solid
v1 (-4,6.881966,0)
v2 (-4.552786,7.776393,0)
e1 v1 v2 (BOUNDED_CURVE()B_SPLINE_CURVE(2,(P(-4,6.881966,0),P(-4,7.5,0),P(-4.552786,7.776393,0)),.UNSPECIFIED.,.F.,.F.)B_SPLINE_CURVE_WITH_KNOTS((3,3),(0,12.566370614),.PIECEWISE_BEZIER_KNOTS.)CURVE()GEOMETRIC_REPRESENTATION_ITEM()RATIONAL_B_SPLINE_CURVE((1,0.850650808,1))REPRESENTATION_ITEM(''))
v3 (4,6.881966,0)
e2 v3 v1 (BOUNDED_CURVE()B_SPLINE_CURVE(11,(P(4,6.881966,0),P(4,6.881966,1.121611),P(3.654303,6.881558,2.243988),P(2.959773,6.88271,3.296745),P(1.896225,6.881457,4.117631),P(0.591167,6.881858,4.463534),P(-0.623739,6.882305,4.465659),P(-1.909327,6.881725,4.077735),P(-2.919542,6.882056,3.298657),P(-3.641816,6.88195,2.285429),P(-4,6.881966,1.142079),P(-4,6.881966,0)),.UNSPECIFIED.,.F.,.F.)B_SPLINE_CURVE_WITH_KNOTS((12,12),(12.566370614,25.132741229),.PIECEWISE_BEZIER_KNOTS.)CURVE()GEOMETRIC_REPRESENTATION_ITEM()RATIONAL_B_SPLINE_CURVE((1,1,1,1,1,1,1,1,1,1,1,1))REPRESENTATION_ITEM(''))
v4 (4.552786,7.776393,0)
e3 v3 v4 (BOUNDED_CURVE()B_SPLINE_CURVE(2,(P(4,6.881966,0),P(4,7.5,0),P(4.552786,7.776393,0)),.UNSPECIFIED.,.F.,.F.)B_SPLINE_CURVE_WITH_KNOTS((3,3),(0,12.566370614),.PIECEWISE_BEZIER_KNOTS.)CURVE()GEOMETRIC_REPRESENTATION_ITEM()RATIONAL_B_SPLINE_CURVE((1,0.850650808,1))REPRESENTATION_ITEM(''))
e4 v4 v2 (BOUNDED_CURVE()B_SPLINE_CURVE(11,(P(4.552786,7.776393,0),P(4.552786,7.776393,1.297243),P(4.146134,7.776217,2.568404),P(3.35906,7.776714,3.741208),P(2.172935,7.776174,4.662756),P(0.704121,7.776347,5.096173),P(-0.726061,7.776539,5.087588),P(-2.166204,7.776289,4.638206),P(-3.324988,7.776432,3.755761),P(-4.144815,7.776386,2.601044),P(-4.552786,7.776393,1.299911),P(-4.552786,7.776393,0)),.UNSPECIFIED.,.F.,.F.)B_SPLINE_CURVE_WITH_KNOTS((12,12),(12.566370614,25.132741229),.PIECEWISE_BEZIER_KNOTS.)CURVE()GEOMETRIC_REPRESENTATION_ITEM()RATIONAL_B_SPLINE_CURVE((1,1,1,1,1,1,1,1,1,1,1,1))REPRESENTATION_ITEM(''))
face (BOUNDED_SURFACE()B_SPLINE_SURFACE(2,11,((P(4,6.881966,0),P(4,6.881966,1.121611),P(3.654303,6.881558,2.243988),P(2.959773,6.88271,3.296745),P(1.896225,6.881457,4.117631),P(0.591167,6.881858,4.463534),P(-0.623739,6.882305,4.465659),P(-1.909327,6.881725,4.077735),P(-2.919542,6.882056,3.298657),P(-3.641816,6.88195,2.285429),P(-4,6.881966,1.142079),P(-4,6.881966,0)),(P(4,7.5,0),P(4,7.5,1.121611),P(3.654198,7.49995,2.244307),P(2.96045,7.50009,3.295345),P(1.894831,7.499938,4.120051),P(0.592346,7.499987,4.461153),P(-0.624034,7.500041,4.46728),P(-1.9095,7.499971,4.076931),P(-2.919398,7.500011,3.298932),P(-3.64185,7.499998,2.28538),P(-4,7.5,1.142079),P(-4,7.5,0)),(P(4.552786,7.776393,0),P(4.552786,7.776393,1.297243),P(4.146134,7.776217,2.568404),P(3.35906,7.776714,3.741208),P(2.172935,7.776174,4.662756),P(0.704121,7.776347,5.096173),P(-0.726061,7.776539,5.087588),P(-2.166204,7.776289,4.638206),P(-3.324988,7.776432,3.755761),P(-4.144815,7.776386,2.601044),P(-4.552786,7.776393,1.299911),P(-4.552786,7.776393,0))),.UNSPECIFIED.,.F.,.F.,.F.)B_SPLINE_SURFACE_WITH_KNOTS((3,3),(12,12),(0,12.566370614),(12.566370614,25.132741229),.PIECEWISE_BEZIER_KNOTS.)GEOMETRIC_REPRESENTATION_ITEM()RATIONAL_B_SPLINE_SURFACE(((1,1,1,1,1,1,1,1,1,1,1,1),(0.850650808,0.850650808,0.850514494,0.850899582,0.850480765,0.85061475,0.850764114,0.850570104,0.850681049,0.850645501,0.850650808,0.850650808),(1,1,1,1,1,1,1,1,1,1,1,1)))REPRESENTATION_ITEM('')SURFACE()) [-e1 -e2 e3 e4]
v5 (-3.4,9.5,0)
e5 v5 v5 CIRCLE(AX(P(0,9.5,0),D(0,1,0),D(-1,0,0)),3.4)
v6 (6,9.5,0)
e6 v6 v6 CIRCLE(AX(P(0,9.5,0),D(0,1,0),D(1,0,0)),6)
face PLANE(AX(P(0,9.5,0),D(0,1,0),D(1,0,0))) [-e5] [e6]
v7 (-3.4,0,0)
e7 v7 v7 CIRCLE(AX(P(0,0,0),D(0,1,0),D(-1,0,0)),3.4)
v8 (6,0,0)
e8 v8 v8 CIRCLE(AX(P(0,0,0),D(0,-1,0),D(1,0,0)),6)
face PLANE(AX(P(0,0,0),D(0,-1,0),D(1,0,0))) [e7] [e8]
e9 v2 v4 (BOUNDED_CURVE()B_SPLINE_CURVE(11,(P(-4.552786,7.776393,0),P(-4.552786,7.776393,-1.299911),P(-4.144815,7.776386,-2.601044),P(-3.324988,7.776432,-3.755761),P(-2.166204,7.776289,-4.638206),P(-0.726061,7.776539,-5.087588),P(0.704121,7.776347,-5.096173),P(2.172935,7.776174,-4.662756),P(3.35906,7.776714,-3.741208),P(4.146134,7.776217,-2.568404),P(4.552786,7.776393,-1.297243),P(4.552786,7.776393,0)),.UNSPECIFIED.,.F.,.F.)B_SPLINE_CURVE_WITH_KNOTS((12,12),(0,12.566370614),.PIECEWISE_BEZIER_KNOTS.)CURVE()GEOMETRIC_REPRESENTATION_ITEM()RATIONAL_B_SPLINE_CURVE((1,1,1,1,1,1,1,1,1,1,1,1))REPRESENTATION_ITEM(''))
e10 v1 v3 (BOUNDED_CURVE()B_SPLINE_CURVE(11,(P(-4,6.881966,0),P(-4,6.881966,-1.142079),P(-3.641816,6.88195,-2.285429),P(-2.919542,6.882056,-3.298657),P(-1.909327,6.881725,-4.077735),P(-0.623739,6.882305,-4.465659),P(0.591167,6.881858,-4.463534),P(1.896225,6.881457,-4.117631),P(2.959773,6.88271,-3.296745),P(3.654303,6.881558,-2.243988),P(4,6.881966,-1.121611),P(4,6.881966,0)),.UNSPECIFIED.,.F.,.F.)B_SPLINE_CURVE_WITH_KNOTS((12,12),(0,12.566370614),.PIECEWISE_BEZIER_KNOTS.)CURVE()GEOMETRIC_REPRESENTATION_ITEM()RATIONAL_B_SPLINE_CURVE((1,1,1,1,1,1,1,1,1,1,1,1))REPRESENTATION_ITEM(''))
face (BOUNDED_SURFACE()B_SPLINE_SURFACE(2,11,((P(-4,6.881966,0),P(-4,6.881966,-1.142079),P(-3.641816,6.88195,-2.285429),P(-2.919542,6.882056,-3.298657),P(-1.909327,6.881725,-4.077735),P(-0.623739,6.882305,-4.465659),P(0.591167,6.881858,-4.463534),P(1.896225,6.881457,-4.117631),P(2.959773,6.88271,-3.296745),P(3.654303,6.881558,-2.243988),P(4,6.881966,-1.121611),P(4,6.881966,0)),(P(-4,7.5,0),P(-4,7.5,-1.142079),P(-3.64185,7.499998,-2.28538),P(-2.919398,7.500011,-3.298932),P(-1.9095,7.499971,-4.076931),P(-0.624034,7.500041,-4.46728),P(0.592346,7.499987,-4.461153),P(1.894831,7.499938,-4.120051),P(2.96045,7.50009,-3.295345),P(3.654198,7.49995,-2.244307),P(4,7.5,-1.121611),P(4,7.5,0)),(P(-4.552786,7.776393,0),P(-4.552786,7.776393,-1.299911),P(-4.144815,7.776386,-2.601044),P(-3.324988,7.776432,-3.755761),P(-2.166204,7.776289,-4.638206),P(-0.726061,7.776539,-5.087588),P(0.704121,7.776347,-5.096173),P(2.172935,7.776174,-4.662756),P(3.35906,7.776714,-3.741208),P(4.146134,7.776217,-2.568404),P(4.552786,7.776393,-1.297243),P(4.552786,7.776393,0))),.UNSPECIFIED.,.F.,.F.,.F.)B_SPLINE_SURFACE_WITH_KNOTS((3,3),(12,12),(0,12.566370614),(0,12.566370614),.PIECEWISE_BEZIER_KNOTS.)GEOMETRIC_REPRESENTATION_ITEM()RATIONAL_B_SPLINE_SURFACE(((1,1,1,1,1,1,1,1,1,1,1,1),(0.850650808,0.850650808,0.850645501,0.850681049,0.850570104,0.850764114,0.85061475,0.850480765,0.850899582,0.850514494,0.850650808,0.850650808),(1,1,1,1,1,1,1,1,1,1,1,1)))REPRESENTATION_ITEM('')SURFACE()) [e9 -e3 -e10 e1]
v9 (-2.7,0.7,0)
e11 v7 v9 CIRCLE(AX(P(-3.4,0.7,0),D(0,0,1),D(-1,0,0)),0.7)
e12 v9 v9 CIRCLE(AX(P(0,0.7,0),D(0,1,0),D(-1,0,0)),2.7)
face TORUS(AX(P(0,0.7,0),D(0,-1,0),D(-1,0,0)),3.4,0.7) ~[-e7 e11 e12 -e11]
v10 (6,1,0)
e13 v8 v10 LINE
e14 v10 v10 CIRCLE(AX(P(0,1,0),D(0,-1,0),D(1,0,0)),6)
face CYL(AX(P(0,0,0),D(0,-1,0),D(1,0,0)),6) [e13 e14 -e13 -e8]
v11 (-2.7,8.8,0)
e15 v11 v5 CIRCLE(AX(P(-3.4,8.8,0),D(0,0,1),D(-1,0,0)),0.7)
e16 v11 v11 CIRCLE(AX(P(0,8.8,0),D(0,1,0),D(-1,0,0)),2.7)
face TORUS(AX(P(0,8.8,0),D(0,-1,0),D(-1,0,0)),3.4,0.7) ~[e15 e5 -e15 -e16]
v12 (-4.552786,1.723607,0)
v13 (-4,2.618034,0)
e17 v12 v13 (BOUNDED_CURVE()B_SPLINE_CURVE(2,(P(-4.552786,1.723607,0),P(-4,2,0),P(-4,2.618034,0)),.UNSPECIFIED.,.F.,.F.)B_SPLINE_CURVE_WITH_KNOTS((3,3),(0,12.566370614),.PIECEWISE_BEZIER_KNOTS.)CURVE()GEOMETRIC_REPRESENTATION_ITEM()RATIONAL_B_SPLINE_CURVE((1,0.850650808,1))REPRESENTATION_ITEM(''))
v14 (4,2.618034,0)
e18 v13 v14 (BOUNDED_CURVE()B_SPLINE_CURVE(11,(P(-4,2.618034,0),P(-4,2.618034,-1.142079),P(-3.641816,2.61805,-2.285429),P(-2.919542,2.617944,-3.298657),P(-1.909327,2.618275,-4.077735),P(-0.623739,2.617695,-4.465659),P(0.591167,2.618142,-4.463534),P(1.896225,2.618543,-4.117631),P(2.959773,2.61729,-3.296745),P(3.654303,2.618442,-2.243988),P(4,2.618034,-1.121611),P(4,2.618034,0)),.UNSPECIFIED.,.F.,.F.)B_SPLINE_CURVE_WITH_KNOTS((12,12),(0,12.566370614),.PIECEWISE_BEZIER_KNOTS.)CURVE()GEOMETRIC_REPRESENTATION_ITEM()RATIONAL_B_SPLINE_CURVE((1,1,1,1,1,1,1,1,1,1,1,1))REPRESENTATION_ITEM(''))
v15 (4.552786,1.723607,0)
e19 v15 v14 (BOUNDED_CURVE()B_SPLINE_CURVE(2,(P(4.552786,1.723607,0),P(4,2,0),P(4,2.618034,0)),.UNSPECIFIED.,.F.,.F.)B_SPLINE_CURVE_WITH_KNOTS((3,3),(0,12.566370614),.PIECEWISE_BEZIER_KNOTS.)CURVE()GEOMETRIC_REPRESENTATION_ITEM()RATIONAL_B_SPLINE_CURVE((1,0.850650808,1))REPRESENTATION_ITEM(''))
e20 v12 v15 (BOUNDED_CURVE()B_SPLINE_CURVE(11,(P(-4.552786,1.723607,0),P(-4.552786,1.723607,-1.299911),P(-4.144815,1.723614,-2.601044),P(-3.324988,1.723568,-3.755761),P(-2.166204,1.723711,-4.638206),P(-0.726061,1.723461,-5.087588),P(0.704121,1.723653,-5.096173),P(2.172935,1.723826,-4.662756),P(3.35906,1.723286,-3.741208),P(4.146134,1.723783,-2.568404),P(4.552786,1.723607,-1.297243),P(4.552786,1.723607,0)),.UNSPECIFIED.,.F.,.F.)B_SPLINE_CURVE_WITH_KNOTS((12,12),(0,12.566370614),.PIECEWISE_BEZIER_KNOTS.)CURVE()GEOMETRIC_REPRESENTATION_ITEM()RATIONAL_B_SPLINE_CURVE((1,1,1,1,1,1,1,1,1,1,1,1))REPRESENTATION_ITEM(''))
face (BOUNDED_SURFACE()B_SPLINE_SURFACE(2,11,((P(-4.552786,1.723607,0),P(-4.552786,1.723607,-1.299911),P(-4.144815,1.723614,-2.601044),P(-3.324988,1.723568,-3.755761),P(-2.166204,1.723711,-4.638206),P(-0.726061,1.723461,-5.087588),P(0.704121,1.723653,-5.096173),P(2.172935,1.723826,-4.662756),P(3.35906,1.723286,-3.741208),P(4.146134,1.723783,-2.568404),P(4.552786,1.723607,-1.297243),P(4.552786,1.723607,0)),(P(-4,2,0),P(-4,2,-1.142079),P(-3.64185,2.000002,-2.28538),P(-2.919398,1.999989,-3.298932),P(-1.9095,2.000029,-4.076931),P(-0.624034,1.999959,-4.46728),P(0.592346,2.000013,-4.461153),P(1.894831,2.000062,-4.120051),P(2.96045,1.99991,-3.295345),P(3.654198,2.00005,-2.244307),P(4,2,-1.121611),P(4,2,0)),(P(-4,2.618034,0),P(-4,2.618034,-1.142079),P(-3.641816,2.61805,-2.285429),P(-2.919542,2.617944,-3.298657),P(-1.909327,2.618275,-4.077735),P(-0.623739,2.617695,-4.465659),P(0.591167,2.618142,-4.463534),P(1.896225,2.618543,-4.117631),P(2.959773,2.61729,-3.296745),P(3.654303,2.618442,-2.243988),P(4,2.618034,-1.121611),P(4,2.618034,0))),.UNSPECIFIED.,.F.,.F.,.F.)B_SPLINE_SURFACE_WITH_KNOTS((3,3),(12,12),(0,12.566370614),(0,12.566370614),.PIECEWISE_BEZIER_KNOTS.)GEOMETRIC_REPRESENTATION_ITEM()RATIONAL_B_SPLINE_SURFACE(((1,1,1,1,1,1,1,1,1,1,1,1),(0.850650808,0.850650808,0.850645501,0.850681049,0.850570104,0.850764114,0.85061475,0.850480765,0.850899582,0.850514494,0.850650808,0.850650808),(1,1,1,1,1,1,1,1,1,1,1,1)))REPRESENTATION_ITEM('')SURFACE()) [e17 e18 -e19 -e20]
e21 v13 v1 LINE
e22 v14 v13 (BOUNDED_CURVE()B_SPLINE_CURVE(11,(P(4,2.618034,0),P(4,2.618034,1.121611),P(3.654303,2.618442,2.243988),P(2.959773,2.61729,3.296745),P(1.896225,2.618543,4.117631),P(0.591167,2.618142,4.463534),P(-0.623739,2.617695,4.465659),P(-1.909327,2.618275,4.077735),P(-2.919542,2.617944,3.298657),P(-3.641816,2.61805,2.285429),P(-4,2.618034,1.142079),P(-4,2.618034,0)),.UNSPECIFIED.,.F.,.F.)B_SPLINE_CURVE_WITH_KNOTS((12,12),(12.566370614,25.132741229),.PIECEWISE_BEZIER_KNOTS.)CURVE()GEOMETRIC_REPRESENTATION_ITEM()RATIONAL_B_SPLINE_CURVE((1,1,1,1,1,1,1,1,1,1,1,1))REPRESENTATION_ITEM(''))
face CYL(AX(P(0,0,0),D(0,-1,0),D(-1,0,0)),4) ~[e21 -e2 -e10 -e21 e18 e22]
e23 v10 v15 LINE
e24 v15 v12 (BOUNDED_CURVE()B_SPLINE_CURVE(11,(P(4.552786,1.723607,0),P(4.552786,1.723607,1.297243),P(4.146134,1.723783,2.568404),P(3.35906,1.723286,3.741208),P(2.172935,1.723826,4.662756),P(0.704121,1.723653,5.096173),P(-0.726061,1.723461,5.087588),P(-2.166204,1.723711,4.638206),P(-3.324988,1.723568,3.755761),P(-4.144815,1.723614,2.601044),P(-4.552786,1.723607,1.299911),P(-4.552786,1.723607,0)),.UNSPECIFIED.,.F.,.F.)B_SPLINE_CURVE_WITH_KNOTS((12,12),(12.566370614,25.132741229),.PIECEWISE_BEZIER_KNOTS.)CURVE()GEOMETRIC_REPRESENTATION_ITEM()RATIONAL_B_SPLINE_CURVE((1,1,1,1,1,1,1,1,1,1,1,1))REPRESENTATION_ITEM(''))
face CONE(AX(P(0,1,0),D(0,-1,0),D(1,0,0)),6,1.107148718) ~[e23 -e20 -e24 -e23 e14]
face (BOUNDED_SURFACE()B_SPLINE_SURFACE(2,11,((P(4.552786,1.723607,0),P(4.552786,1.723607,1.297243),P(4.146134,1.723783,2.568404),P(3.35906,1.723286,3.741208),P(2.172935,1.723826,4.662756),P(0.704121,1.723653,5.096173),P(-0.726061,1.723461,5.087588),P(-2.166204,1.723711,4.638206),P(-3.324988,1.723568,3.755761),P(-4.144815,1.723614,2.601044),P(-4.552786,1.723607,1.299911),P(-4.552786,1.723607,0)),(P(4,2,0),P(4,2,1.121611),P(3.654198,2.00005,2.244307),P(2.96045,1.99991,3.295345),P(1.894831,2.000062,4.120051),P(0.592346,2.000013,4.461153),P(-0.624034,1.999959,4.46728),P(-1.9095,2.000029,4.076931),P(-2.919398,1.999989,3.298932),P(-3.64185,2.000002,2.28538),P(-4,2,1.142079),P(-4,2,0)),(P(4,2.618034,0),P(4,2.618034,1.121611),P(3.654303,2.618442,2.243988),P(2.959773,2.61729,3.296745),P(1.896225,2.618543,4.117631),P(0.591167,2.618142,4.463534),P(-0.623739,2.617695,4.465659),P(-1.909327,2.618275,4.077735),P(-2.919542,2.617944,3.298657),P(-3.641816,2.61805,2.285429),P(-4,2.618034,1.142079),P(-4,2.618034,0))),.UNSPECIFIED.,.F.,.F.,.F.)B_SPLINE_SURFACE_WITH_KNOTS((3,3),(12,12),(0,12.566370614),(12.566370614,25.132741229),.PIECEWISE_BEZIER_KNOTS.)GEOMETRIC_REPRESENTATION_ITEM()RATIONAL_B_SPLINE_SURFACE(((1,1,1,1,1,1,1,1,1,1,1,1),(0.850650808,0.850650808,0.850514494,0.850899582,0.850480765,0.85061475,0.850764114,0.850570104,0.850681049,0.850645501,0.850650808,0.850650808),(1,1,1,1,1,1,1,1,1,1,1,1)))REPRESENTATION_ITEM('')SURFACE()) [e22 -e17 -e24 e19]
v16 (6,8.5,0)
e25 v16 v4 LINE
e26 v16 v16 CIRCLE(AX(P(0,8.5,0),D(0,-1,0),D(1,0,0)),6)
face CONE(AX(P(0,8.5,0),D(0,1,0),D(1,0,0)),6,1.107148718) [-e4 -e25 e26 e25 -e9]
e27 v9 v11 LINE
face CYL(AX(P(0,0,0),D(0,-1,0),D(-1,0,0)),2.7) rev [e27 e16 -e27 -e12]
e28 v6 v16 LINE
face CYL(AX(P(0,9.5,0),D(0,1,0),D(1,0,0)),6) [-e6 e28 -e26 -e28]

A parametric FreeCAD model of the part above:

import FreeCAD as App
import Part
import Sketcher

V = App.Vector
Q = App.Units.Quantity


def edges_at(feature, points):
    """Names of the edges that pass closest to the given points."""
    edges = feature.Shape.Edges
    near = lambda p: min(range(len(edges)), key=lambda i: edges[i].distToShape(Part.Vertex(*p))[0])
    return sorted({f"Edge{near(p) + 1}" for p in points})


def add_polygon(sketch, points):
    """Adds a closed chain of lines whose ends are joined by coincident constraints."""
    first, n = sketch.GeometryCount, len(points)
    for a, b in zip(points, points[1:] + points[:1]):
        sketch.addGeometry(Part.LineSegment(App.Vector(*a, 0), App.Vector(*b, 0)), False)
    for i in range(n):
        sketch.addConstraint(Sketcher.Constraint("Coincident", first + i, 2, first + (i + 1) % n, 1))

doc = App.newDocument("Part")
params = doc.addObject("Spreadsheet::Sheet", "Params")
for row, (alias, value) in enumerate([
    ("sketch1_diameter", "8 mm"),
    ("sketch1_diameter2", "5.4 mm"),
    ("pad1_length", "9.5 mm"),
    ("sketch2_diameter", "12 mm"),
    ("sketch2_diameter2", "5.4 mm"),
    ("pad2_length", "2 mm"),
    ("sketch3_diameter", "12 mm"),
    ("sketch3_diameter2", "5.4 mm"),
    ("pad3_length", "2 mm"),
    ("sketch4_width", "2 mm"),
    ("sketch4_height", "1 mm"),
    ("groove_angle", "360 deg"),
    ("fillet_radius", "1 mm"),
    ("fillet2_radius", "0.7 mm"),
], start=1):
    params.set(f"A{row}", alias)
    params.set(f"B{row}", "=" + value)
    params.setAlias(f"B{row}", alias)

body = doc.addObject("PartDesign::Body", "Body")

sketch1 = body.newObject("Sketcher::SketchObject", "Sketch")
sketch1.AttachmentSupport = (doc.getObject("XZ_Plane"), [""])
sketch1.MapMode = "FlatFace"
sketch1.addGeometry([
    Part.Circle(V(0, 0, 0), V(0, 0, 1), 4),
    Part.Circle(V(0, 0, 0), V(0, 0, 1), 2.7),
], False)
sketch1.addConstraint([
    Sketcher.Constraint("Coincident", 0, 3, -1, 1),
    Sketcher.Constraint("Coincident", 1, 3, -1, 1),
    Sketcher.Constraint("Diameter", 0, Q("8 mm")),
    Sketcher.Constraint("Diameter", 1, Q("5.4 mm")),
])
sketch1.setExpression("Constraints[2]", "Params.sketch1_diameter")
sketch1.setExpression("Constraints[3]", "Params.sketch1_diameter2")
pad1 = body.newObject("PartDesign::Pad", "Pad")
pad1.Profile = sketch1
pad1.setExpression("Length", "Params.pad1_length")
pad1.Reversed = True

sketch2 = body.newObject("Sketcher::SketchObject", "Sketch001")
sketch2.AttachmentSupport = (doc.getObject("XZ_Plane"), [""])
sketch2.MapMode = "FlatFace"
sketch2.AttachmentOffset = App.Placement(V(0, 0, -9.5), App.Rotation())
sketch2.addGeometry([
    Part.Circle(V(0, 0, 0), V(0, 0, 1), 6),
    Part.Circle(V(0, 0, 0), V(0, 0, 1), 2.7),
], False)
sketch2.addConstraint([
    Sketcher.Constraint("Coincident", 0, 3, -1, 1),
    Sketcher.Constraint("Coincident", 1, 3, -1, 1),
    Sketcher.Constraint("Diameter", 0, Q("12 mm")),
    Sketcher.Constraint("Diameter", 1, Q("5.4 mm")),
])
sketch2.setExpression("Constraints[2]", "Params.sketch2_diameter")
sketch2.setExpression("Constraints[3]", "Params.sketch2_diameter2")
pad2 = body.newObject("PartDesign::Pad", "Pad001")
pad2.Profile = sketch2
pad2.setExpression("Length", "Params.pad2_length")

sketch3 = body.newObject("Sketcher::SketchObject", "Sketch002")
sketch3.AttachmentSupport = (doc.getObject("XZ_Plane"), [""])
sketch3.MapMode = "FlatFace"
sketch3.addGeometry([
    Part.Circle(V(0, 0, 0), V(0, 0, 1), 6),
    Part.Circle(V(0, 0, 0), V(0, 0, 1), 2.7),
], False)
sketch3.addConstraint([
    Sketcher.Constraint("Coincident", 0, 3, -1, 1),
    Sketcher.Constraint("Coincident", 1, 3, -1, 1),
    Sketcher.Constraint("Diameter", 0, Q("12 mm")),
    Sketcher.Constraint("Diameter", 1, Q("5.4 mm")),
])
sketch3.setExpression("Constraints[2]", "Params.sketch3_diameter")
sketch3.setExpression("Constraints[3]", "Params.sketch3_diameter2")
pad3 = body.newObject("PartDesign::Pad", "Pad002")
pad3.Profile = sketch3
pad3.setExpression("Length", "Params.pad3_length")
pad3.Reversed = True

sketch4 = body.newObject("Sketcher::SketchObject", "Sketch003")
sketch4.AttachmentSupport = (doc.getObject("XY_Plane"), [""])
sketch4.MapMode = "FlatFace"
add_polygon(sketch4, [(6, 7.5), (6, 8.5), (4, 7.5)])
add_polygon(sketch4, [(4, 2), (6, 1), (6, 2)])
sketch4.addConstraint([
    Sketcher.Constraint("Vertical", 0),
    Sketcher.Constraint("Horizontal", 2),
    Sketcher.Constraint("Vertical", 4),
    Sketcher.Constraint("Horizontal", 5),
    Sketcher.Constraint("Vertical", 2, 2, 3, 2),
    Sketcher.Constraint("Vertical", 1, 2, 5, 2),
    Sketcher.Constraint("Equal", 0, 4),
    Sketcher.Constraint("DistanceX", 2, 1, 2, 2, Q("2 mm")),
    Sketcher.Constraint("DistanceY", 0, 1, 0, 2, Q("1 mm")),
    Sketcher.Constraint("DistanceX", -1, 1, 0, 2, Q("6 mm")),
    Sketcher.Constraint("DistanceY", -1, 1, 3, 2, Q("1 mm")),
    Sketcher.Constraint("DistanceY", -1, 1, 0, 2, Q("8.5 mm")),
])
sketch4.setExpression("Constraints[13]", "Params.sketch4_width")
sketch4.setExpression("Constraints[14]", "Params.sketch4_height")
groove = body.newObject("PartDesign::Groove", "Groove")
groove.Profile = sketch4
groove.ReferenceAxis = (sketch4, ["V_Axis"])
groove.setExpression("Angle", "Params.groove_angle")
doc.recompute()

fillet = body.newObject("PartDesign::Fillet", "Fillet")
fillet.Base = (groove, edges_at(groove, [
    (0, 7.5, -4),
    (0, 7.5, 4),
    (0, 2, -4),
    (0, 2, 4),
]))
fillet.setExpression("Radius", "Params.fillet_radius")
doc.recompute()

fillet2 = body.newObject("PartDesign::Fillet", "Fillet001")
fillet2.Base = (fillet, edges_at(fillet, [(2.7, 0, 0), (2.7, 9.5, 0)]))
fillet2.setExpression("Radius", "Params.fillet2_radius")

doc.recompute()
